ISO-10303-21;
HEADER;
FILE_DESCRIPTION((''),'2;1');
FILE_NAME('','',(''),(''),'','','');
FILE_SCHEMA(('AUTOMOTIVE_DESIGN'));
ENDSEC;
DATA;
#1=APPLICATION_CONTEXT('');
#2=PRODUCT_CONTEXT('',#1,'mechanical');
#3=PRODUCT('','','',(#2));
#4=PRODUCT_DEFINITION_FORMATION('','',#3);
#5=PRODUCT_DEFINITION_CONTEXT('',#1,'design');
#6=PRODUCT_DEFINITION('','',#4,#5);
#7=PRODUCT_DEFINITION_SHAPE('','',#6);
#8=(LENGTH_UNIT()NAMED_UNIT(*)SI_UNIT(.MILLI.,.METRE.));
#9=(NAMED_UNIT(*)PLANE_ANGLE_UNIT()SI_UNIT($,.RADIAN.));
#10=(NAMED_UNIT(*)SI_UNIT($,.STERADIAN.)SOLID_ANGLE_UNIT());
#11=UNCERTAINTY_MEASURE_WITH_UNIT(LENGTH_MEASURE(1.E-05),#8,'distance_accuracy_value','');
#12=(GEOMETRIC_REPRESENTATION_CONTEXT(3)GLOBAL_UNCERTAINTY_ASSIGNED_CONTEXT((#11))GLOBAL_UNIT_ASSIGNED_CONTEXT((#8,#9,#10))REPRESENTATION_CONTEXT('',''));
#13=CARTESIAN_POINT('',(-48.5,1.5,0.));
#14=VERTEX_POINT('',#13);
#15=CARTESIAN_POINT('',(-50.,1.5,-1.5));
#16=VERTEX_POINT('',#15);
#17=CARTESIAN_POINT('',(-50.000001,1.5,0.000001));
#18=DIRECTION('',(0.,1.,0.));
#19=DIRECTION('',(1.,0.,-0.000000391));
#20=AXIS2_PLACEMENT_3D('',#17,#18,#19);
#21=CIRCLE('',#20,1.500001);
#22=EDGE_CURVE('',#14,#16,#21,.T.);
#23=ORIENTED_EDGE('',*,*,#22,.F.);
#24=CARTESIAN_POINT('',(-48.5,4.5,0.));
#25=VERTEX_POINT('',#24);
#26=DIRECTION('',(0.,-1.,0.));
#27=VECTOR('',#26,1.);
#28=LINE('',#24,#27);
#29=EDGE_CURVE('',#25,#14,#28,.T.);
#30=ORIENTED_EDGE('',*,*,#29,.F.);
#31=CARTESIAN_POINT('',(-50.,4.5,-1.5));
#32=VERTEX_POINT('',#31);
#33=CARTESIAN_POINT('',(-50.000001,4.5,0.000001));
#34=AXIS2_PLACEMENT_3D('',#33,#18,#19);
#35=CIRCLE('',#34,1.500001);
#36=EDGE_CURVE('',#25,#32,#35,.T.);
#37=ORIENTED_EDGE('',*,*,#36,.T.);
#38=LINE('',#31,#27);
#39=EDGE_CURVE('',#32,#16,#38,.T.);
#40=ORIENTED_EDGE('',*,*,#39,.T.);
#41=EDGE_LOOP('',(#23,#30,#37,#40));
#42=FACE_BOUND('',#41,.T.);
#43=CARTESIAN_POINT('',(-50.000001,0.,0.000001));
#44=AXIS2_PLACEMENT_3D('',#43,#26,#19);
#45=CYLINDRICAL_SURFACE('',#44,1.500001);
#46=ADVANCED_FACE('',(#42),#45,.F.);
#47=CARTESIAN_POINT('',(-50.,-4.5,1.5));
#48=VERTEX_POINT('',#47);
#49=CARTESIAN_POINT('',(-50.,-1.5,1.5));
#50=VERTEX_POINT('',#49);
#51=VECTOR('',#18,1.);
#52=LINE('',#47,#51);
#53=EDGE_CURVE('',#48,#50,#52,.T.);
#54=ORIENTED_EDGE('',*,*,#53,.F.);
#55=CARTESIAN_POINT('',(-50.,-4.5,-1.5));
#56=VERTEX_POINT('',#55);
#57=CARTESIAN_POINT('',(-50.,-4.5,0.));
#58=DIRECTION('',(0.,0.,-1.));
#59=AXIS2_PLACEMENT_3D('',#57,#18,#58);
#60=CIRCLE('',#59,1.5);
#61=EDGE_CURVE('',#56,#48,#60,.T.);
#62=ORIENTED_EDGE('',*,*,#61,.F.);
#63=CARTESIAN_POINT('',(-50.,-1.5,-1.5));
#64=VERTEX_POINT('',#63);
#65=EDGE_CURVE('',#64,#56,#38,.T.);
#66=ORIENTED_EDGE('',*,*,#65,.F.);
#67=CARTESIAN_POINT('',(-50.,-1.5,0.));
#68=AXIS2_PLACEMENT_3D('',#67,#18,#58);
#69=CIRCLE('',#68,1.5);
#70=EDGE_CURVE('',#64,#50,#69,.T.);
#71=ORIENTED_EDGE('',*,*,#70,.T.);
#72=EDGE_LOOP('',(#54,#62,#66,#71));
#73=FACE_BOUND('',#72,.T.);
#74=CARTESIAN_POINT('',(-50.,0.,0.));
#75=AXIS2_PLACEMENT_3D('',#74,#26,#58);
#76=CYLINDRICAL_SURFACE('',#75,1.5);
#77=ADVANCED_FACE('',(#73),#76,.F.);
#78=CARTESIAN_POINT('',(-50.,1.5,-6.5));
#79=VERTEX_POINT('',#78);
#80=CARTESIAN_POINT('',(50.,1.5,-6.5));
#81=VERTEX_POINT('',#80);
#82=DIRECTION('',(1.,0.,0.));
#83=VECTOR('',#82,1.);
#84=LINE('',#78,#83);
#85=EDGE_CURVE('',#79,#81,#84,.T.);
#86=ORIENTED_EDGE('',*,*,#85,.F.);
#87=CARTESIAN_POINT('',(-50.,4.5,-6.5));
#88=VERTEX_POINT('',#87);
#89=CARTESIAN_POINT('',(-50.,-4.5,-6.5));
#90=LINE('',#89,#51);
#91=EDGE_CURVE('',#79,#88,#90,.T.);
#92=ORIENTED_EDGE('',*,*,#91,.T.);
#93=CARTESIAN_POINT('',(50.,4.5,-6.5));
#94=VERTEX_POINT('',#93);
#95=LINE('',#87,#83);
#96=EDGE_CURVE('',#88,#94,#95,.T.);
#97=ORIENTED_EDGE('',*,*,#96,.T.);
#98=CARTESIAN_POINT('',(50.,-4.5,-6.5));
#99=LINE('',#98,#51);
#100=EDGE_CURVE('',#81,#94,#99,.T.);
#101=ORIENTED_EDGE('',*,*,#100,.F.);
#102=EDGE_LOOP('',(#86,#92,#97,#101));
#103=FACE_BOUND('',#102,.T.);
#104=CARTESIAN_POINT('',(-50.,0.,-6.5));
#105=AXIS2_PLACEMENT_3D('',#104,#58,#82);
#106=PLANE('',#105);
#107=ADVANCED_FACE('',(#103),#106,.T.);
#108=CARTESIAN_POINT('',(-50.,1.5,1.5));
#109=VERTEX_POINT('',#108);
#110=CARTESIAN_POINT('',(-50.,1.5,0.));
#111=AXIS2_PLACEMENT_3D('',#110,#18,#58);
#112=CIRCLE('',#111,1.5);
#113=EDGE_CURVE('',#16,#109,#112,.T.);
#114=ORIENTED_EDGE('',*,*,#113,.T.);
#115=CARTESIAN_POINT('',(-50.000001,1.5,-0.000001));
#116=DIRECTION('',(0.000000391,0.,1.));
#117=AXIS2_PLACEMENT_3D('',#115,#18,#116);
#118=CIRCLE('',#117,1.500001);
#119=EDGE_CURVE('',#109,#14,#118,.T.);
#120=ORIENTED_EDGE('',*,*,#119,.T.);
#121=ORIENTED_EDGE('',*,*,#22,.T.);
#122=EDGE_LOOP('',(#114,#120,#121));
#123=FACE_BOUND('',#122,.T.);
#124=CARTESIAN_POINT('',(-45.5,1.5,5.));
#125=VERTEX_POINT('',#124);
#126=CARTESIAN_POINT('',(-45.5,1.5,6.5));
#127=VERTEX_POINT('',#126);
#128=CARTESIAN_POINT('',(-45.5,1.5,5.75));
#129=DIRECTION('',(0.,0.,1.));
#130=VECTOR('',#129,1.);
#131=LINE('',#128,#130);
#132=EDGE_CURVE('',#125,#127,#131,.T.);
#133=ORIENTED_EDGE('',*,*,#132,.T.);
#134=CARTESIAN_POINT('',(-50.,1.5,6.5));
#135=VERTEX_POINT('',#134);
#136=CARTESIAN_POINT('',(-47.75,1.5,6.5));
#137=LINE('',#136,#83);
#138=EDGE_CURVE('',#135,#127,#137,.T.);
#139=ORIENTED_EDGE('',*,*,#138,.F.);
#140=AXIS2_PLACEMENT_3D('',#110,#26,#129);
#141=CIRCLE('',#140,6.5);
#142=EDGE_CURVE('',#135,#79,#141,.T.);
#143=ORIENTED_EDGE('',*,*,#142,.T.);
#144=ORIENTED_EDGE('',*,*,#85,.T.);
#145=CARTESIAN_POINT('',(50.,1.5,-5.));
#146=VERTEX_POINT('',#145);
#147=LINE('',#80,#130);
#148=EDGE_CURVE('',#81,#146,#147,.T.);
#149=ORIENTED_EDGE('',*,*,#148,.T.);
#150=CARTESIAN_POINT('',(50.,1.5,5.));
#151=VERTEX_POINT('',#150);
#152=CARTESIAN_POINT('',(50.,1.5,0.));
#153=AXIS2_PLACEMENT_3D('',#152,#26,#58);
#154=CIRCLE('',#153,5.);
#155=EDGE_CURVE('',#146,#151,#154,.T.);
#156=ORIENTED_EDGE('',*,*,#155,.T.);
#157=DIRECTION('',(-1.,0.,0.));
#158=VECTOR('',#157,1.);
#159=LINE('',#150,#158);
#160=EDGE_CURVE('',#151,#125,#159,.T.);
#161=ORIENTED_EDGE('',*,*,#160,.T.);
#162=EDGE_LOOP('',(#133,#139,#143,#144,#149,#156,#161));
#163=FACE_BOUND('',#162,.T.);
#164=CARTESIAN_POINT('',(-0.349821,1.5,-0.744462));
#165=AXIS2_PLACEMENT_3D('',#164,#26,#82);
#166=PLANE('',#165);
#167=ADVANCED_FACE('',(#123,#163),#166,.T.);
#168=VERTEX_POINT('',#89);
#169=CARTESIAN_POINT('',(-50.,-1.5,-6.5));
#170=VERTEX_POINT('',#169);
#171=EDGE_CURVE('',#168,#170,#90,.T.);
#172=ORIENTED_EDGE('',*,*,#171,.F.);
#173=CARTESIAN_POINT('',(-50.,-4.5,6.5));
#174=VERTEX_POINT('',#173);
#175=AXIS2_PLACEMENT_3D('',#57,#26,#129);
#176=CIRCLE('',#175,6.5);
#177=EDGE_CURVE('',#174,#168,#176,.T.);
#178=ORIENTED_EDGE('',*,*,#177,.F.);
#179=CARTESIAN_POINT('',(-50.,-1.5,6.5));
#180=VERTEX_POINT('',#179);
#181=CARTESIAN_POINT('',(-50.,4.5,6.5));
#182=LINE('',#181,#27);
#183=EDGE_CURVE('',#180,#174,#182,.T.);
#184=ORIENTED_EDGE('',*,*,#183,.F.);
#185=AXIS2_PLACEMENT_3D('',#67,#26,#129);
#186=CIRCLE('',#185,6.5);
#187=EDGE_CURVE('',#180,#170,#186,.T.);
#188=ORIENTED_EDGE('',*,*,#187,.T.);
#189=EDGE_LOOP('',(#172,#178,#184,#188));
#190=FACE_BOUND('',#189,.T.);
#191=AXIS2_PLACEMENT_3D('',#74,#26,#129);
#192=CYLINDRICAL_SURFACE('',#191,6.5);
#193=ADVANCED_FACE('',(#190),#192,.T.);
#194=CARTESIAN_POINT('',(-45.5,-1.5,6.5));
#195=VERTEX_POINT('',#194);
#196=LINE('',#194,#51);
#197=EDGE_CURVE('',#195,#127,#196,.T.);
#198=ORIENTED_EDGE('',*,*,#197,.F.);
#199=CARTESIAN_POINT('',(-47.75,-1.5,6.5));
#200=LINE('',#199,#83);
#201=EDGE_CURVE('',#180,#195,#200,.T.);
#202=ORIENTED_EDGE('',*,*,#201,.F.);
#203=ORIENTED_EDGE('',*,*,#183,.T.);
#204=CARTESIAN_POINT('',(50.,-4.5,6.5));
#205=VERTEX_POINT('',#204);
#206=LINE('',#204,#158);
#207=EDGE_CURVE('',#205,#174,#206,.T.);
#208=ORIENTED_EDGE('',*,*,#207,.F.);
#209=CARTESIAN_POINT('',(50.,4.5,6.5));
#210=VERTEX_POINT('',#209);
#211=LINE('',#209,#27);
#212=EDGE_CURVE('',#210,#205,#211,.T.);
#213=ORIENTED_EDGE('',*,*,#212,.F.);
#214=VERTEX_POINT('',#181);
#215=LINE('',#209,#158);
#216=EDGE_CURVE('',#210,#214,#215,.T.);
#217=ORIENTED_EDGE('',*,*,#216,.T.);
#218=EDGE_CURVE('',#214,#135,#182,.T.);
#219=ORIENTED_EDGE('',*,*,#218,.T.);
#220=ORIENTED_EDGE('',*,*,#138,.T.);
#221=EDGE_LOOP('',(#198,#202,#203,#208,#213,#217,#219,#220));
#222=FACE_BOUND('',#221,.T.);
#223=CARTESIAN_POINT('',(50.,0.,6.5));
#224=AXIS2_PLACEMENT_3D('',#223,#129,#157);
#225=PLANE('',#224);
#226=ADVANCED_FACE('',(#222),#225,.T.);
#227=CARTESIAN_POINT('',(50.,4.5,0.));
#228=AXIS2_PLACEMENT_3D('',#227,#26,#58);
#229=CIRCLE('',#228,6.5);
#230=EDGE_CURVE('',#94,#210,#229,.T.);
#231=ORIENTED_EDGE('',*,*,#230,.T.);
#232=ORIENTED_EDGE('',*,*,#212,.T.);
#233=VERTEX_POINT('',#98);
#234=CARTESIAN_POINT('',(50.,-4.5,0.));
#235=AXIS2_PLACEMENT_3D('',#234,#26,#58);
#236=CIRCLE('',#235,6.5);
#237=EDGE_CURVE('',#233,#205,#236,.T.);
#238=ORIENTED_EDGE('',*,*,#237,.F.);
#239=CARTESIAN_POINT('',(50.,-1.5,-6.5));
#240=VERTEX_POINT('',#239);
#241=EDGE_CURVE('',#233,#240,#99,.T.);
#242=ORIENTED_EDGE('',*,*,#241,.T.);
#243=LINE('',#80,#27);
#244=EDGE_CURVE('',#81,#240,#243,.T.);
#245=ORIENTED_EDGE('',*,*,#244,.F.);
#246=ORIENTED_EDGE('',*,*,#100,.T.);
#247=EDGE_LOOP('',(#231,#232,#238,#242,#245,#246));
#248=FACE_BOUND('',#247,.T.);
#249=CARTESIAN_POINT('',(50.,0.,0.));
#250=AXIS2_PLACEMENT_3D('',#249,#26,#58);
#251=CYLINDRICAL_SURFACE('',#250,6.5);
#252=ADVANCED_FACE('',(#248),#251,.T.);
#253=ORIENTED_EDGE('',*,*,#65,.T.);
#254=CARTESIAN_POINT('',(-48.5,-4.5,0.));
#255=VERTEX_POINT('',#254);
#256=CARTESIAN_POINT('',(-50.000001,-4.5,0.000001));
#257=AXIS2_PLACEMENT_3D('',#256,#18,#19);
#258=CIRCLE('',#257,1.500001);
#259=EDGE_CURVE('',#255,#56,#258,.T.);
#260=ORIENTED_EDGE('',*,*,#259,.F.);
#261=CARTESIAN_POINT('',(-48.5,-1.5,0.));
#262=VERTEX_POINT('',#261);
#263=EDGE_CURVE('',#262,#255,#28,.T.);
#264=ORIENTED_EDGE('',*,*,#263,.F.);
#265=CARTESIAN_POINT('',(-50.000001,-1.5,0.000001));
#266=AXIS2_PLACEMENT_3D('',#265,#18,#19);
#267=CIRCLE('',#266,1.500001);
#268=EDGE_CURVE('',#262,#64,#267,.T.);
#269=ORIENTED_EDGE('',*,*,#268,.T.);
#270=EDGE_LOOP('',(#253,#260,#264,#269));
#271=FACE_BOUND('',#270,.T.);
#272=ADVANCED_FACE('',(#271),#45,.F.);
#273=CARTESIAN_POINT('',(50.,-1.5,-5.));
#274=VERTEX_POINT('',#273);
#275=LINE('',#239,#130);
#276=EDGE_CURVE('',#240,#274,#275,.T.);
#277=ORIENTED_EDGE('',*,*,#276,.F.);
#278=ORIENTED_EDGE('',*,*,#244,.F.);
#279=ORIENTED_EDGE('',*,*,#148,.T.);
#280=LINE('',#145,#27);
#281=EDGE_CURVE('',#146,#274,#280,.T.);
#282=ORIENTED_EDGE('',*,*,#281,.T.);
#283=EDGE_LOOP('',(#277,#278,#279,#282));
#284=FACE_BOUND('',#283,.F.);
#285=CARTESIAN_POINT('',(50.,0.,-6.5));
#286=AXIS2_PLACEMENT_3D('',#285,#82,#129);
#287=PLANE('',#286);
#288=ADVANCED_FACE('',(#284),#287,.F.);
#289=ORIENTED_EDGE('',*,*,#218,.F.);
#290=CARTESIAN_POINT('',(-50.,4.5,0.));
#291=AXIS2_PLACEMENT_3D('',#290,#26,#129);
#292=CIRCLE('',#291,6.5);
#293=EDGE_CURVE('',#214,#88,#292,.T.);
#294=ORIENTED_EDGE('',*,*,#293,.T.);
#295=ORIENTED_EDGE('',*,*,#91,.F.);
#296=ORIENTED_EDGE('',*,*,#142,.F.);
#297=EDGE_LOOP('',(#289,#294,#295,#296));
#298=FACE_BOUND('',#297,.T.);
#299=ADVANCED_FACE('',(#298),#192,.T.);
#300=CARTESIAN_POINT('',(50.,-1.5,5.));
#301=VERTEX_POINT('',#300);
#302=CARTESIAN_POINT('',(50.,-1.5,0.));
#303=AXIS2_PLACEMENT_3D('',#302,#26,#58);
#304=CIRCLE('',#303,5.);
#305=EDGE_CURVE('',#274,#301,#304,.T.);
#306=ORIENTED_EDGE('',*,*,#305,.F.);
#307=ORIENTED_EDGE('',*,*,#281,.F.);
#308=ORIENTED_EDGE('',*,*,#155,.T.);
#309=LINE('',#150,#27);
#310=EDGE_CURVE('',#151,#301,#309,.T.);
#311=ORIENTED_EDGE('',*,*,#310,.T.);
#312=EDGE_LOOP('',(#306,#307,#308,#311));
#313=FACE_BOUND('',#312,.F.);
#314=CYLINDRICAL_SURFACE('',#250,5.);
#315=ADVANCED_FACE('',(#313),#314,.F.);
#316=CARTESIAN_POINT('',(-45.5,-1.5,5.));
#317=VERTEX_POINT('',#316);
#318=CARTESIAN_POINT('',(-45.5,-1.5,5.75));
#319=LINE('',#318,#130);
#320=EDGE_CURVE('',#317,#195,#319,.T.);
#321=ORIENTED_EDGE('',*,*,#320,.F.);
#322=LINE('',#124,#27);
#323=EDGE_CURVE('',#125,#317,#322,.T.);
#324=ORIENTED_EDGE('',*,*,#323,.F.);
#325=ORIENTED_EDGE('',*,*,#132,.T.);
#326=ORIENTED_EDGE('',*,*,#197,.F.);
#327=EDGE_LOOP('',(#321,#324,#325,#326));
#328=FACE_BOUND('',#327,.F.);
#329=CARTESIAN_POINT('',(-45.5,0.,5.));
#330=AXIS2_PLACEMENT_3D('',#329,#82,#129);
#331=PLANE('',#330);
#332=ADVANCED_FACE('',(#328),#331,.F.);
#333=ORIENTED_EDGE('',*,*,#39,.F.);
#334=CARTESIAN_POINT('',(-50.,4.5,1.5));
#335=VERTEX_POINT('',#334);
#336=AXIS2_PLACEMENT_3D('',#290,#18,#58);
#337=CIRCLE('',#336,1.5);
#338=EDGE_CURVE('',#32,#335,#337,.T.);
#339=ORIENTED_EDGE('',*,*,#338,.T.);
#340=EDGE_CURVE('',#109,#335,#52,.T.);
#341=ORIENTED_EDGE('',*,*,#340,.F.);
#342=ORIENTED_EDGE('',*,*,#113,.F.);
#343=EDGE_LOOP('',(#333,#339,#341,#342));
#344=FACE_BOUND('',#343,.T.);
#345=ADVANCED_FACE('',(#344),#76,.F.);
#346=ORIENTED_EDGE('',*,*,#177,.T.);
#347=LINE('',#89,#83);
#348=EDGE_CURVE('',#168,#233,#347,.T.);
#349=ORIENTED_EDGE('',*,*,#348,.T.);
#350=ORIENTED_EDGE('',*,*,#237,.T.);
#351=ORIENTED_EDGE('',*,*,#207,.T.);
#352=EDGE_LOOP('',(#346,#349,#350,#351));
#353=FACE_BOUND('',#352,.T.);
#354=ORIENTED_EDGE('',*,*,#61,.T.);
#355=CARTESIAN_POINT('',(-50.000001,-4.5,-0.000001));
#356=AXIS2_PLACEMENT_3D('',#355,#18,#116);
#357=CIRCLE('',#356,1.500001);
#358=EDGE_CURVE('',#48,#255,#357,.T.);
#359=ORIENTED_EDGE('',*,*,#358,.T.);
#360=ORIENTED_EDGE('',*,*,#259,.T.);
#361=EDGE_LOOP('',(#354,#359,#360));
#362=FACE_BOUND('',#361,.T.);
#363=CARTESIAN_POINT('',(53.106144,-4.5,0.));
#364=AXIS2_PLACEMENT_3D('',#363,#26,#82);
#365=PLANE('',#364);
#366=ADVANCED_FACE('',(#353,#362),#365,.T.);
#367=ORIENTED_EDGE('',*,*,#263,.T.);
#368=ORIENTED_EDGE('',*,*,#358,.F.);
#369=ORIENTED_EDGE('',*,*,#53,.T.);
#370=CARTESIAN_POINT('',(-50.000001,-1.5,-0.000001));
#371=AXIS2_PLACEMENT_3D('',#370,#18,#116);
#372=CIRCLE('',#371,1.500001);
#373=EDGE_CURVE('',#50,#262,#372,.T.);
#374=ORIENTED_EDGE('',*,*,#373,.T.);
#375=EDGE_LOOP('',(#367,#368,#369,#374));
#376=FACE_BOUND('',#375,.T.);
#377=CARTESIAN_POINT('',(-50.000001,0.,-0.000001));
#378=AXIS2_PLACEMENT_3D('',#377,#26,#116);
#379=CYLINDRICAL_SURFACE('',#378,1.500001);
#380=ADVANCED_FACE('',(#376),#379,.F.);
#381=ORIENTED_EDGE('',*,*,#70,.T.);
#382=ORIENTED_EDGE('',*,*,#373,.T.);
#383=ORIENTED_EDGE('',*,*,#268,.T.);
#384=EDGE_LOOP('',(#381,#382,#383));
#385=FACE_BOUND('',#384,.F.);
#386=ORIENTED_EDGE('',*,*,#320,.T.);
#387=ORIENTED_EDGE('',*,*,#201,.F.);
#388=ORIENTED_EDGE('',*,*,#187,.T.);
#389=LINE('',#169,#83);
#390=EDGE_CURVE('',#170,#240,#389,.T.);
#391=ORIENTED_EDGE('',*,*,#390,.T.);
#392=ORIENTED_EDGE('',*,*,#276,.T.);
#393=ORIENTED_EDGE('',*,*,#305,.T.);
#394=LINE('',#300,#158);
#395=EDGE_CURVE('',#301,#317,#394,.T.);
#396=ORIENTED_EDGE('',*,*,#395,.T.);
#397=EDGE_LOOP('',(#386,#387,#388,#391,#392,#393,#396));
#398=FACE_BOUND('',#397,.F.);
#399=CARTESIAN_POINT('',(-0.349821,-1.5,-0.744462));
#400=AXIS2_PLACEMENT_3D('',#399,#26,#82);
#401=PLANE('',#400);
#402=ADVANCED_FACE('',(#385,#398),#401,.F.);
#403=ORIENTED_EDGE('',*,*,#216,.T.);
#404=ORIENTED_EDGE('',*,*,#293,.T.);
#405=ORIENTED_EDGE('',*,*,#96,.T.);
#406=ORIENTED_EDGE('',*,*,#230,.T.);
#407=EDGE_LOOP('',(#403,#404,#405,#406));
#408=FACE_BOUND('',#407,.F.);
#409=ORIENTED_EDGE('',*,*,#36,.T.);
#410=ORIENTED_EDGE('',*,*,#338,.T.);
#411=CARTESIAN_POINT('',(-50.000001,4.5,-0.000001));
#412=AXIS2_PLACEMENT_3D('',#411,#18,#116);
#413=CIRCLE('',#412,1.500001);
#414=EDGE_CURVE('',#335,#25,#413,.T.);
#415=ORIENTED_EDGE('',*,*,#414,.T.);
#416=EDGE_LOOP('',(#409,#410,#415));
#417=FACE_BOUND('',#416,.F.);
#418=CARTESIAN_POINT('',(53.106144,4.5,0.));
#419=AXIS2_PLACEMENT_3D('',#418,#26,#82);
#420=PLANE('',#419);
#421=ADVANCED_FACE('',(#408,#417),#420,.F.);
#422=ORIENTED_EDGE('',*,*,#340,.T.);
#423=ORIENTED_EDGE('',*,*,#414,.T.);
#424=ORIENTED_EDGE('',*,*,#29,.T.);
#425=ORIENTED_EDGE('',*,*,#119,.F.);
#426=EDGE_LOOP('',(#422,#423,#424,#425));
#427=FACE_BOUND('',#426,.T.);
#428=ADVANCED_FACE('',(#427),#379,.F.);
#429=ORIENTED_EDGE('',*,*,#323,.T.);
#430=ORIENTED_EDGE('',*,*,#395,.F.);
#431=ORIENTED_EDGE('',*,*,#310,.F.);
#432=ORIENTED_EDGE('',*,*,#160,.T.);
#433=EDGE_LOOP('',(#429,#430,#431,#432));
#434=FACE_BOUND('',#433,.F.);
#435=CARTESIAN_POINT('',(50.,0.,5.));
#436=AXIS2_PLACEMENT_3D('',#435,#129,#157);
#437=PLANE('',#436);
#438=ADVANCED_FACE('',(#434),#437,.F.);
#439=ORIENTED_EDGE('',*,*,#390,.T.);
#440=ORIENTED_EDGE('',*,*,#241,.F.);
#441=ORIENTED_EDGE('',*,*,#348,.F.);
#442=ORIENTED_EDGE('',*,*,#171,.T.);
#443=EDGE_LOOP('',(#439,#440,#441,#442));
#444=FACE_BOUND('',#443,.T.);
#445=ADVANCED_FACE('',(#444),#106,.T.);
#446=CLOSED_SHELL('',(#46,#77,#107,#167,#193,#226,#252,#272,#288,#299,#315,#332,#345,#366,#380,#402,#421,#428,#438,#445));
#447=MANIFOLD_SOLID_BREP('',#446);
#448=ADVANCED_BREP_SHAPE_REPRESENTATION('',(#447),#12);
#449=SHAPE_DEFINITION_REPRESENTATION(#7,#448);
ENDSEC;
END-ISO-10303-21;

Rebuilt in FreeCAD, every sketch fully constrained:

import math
import FreeCAD as App
import Part
import Sketcher
from FreeCAD import Vector

doc = App.newDocument("Part")
body = doc.addObject("PartDesign::Body", "Body")

# Sketch on XZ plane
sketch1 = body.newObject("Sketcher::SketchObject", "Sketch")
sketch1.AttachmentSupport = (doc.getObject("XZ_Plane"), [""])
sketch1.MapMode = "FlatFace"
sketch1.addGeometry([
    Part.ArcOfCircle(Part.Circle(Vector(50, 0, 0), Vector(0, 0, 1), 6.5), math.radians(-90), math.radians(90)),  # 0
    Part.LineSegment(Vector(50, 6.5, 0), Vector(-50, 6.5, 0)),  # 1
    Part.ArcOfCircle(Part.Circle(Vector(-50, 0, 0), Vector(0, 0, 1), 6.5), math.radians(90), math.radians(270)),  # 2
    Part.LineSegment(Vector(-50, -6.5, 0), Vector(50, -6.5, 0)),  # 3
    Part.ArcOfCircle(Part.Circle(Vector(-50.000001, -0.000001, 0), Vector(0, 0, 1), 1.500001), math.radians(0.000022), math.radians(89.999978)),  # 4
    Part.ArcOfCircle(Part.Circle(Vector(-50.000001, 0.000001, 0), Vector(0, 0, 1), 1.500001), math.radians(-89.999978), math.radians(-0.000022)),  # 5
    Part.ArcOfCircle(Part.Circle(Vector(-50, 0, 0), Vector(0, 0, 1), 1.5), math.radians(90), math.radians(270)),  # 6
], False)
sketch1.addConstraint([
    Sketcher.Constraint("Tangent", 0, 2, 1, 1),
    Sketcher.Constraint("Tangent", 1, 2, 2, 1),
    Sketcher.Constraint("Tangent", 2, 2, 3, 1),
    Sketcher.Constraint("Tangent", 3, 2, 0, 1),
    Sketcher.Constraint("Tangent", 4, 1, 5, 2),
    Sketcher.Constraint("Tangent", 5, 1, 6, 2),
    Sketcher.Constraint("Tangent", 6, 1, 4, 2),
    Sketcher.Constraint("Horizontal", 1),
    Sketcher.Constraint("Horizontal", 3),
    Sketcher.Constraint("Coincident", 4, 3, 2, 3),
    Sketcher.Constraint("Symmetric", 0, 3, 2, 3, -1, 1),
    Sketcher.Constraint("PointOnObject", 4, 1, -1),
    Sketcher.Constraint("Vertical", 2, 2, 5, 1),
    Sketcher.Constraint("Vertical", 5, 1, 6, 1),
    Sketcher.Constraint("Radius", 0, 6.5),
    Sketcher.Constraint("Radius", 4, 1.500001),
    Sketcher.Constraint("DistanceX", 1, 2, 1, 1, 100.0),
])
pad1 = body.newObject("PartDesign::Pad", "Pad")
pad1.Profile = sketch1
pad1.Length = 9
pad1.Midplane = True

# Sketch on XZ plane
sketch2 = body.newObject("Sketcher::SketchObject", "Sketch001")
sketch2.AttachmentSupport = (doc.getObject("XZ_Plane"), [""])
sketch2.MapMode = "FlatFace"
sketch2.addGeometry([
    Part.LineSegment(Vector(-50, -6.5, 0), Vector(50, -6.5, 0)),  # 0
    Part.LineSegment(Vector(50, -6.5, 0), Vector(50, -5, 0)),  # 1
    Part.ArcOfCircle(Part.Circle(Vector(50, 0, 0), Vector(0, 0, 1), 5), math.radians(-90), math.radians(90)),  # 2
    Part.LineSegment(Vector(50, 5, 0), Vector(-45.5, 5, 0)),  # 3
    Part.LineSegment(Vector(-45.5, 5, 0), Vector(-45.5, 6.5, 0)),  # 4
    Part.LineSegment(Vector(-45.5, 6.5, 0), Vector(-50, 6.5, 0)),  # 5
    Part.ArcOfCircle(Part.Circle(Vector(-50, 0, 0), Vector(0, 0, 1), 6.5), math.radians(90), math.radians(270)),  # 6
    Part.ArcOfCircle(Part.Circle(Vector(-50.000001, -0.000001, 0), Vector(0, 0, 1), 1.500001), math.radians(0.000022), math.radians(89.999978)),  # 7
    Part.ArcOfCircle(Part.Circle(Vector(-50.000001, 0.000001, 0), Vector(0, 0, 1), 1.500001), math.radians(-89.999978), math.radians(-0.000022)),  # 8
    Part.ArcOfCircle(Part.Circle(Vector(-50, 0, 0), Vector(0, 0, 1), 1.5), math.radians(90), math.radians(270)),  # 9
], False)
sketch2.addConstraint([
    Sketcher.Constraint("Coincident", 0, 2, 1, 1),
    Sketcher.Constraint("Coincident", 1, 2, 2, 1),
    Sketcher.Constraint("Tangent", 2, 2, 3, 1),
    Sketcher.Constraint("Coincident", 3, 2, 4, 1),
    Sketcher.Constraint("Coincident", 4, 2, 5, 1),
    Sketcher.Constraint("Tangent", 5, 2, 6, 1),
    Sketcher.Constraint("Tangent", 6, 2, 0, 1),
    Sketcher.Constraint("Tangent", 7, 1, 8, 2),
    Sketcher.Constraint("Tangent", 8, 1, 9, 2),
    Sketcher.Constraint("Tangent", 9, 1, 7, 2),
    Sketcher.Constraint("Horizontal", 0),
    Sketcher.Constraint("Vertical", 1),
    Sketcher.Constraint("Horizontal", 3),
    Sketcher.Constraint("Vertical", 4),
    Sketcher.Constraint("Horizontal", 5),
    Sketcher.Constraint("Coincident", 7, 3, 6, 3),
    Sketcher.Constraint("Symmetric", 2, 3, 6, 3, -1, 1),
    Sketcher.Constraint("Symmetric", 0, 2, 5, 2, -1, 1),
    Sketcher.Constraint("PointOnObject", 7, 1, -1),
    Sketcher.Constraint("Vertical", 6, 2, 8, 1),
    Sketcher.Constraint("Vertical", 8, 1, 9, 1),
    Sketcher.Constraint("Radius", 2, 5.0),
    Sketcher.Constraint("Radius", 6, 6.5),
    Sketcher.Constraint("Radius", 7, 1.500001),
    Sketcher.Constraint("DistanceX", 0, 1, 0, 2, 100.0),
    Sketcher.Constraint("DistanceX", 3, 2, 3, 1, 95.5),
])
pocket1 = body.newObject("PartDesign::Pocket", "Pocket")
pocket1.Profile = sketch2
pocket1.Length = 3
pocket1.Midplane = True

doc.recompute()
